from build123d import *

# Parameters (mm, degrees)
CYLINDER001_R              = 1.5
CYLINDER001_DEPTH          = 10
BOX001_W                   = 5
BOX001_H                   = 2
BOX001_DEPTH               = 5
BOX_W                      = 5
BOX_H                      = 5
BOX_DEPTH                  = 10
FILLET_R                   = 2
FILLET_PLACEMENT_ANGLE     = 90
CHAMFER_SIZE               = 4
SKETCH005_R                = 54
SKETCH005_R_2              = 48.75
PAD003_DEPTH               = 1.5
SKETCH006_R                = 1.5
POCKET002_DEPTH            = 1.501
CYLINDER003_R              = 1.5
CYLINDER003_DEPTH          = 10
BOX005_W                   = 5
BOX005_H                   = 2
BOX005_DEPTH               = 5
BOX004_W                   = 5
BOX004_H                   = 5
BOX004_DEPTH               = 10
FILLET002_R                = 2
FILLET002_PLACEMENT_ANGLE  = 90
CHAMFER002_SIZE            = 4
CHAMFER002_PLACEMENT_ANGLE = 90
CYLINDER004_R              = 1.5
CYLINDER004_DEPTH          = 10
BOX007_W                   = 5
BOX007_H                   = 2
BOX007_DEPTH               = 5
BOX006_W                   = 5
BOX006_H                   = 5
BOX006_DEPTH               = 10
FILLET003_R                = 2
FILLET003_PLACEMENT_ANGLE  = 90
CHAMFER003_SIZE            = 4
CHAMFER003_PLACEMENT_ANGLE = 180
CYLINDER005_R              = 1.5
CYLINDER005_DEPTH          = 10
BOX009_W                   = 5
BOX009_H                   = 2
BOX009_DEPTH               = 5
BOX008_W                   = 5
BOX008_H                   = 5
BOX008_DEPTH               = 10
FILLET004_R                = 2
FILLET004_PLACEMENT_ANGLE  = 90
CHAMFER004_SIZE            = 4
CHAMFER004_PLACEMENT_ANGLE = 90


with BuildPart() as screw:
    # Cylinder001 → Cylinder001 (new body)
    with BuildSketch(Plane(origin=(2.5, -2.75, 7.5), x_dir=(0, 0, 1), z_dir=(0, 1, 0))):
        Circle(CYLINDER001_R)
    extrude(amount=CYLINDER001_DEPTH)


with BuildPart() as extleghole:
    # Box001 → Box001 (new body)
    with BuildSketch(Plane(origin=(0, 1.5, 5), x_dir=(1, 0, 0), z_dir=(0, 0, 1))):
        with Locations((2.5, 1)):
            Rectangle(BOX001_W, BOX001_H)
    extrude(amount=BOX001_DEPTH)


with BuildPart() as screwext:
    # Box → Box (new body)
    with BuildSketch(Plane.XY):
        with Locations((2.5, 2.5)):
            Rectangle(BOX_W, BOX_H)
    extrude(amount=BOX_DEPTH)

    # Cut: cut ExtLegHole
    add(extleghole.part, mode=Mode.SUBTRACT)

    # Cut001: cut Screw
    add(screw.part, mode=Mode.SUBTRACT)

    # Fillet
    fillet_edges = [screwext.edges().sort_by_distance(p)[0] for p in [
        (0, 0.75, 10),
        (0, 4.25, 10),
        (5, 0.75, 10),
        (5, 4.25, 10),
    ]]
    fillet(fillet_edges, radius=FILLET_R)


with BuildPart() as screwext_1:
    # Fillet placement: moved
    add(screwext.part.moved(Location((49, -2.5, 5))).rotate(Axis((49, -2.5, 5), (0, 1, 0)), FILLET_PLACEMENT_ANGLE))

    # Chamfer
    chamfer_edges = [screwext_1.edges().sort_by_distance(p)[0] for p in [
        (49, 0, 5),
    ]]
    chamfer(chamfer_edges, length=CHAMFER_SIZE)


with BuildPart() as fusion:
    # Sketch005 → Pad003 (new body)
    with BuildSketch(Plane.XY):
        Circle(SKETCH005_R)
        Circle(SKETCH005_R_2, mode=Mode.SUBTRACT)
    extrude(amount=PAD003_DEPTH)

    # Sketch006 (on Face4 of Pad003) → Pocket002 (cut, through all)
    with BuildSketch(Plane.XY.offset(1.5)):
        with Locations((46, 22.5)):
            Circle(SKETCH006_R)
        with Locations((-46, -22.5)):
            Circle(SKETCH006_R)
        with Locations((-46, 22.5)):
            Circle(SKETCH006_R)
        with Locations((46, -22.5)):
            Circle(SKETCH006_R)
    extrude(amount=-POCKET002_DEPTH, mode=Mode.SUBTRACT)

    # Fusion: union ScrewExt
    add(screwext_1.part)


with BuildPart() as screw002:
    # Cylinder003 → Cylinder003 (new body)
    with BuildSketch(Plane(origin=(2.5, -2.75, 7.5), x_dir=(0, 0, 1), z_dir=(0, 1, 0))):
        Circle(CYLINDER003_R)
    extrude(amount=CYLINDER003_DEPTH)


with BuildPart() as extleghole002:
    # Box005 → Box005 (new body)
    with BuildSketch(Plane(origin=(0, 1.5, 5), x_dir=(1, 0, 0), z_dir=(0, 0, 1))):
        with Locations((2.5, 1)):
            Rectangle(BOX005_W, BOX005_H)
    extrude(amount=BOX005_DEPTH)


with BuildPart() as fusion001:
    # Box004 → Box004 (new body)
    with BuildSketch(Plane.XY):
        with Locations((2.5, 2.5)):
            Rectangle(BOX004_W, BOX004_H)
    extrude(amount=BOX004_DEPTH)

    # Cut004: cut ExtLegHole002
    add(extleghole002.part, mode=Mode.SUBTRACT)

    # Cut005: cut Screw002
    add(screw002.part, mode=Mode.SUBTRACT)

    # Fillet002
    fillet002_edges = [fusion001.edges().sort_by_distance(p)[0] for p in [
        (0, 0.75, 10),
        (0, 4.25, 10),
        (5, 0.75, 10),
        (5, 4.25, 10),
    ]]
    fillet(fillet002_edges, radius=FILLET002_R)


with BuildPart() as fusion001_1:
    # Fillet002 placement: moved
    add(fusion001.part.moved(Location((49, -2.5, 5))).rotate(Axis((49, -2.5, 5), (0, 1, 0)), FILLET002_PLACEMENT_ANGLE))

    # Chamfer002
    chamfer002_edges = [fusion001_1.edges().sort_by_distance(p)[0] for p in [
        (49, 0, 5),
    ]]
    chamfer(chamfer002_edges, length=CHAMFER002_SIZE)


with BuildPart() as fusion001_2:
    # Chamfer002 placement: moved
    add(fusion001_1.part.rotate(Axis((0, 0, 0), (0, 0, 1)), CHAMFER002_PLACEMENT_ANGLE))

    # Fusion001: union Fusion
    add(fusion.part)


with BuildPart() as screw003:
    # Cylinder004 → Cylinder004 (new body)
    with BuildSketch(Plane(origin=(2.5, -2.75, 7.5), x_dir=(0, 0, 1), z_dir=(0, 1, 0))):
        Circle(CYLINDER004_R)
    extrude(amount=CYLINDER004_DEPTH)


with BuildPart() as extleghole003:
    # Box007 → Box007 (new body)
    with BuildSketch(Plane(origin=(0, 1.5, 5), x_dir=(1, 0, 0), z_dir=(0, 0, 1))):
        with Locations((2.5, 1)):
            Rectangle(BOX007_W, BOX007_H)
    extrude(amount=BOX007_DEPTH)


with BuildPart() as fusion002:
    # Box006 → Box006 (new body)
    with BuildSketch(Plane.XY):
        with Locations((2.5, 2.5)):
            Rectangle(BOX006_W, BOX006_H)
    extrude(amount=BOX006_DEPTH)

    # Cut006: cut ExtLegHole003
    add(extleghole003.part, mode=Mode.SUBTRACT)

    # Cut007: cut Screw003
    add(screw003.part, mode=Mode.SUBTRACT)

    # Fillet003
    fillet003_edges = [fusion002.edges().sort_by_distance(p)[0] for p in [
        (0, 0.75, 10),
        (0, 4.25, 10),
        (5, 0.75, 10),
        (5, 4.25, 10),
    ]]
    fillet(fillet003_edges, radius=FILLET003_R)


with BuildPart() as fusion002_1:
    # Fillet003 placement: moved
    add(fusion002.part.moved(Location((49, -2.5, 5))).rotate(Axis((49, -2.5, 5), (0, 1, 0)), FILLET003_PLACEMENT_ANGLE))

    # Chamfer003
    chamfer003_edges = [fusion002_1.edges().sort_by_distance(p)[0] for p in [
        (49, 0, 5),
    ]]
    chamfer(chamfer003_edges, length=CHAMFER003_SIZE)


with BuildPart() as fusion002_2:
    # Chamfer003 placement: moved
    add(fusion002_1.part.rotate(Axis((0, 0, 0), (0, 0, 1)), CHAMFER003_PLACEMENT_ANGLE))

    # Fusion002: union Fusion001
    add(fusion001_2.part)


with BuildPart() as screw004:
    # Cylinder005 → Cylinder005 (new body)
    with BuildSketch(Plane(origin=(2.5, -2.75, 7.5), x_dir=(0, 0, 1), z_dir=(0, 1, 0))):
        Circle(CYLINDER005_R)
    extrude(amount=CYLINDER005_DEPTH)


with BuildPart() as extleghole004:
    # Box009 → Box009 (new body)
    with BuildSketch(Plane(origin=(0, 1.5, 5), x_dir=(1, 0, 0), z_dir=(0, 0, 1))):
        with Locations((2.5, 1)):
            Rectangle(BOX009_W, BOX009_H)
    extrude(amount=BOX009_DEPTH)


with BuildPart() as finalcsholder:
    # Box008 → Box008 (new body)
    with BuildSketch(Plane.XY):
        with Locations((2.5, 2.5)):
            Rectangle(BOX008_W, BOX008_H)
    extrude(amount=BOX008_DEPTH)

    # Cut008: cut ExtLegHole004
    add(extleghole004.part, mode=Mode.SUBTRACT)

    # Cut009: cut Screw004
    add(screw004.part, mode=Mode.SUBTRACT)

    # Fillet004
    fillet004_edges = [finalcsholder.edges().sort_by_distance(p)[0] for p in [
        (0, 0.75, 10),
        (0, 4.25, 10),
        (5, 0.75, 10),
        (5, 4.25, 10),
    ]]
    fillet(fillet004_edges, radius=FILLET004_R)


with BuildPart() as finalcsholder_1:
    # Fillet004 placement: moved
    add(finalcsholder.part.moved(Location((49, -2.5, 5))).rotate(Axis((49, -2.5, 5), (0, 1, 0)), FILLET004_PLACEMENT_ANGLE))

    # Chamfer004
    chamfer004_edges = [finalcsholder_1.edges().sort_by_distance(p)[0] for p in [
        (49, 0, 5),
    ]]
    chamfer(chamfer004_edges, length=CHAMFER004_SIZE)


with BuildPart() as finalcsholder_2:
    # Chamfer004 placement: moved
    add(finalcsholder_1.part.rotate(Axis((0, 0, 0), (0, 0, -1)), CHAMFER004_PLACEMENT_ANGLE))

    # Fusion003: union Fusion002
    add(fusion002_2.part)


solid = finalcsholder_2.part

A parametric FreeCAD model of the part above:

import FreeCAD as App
import Part
import Sketcher


def edges_at(feature, points):
    """Names of the edges that pass closest to the given points."""
    edges = feature.Shape.Edges
    near = lambda p: min(range(len(edges)), key=lambda i: edges[i].distToShape(Part.Vertex(*p))[0])
    return sorted({f"Edge{near(p) + 1}" for p in points})


def add_polygon(sketch, points):
    """Adds a closed chain of lines whose ends are joined by coincident constraints."""
    first, n = sketch.GeometryCount, len(points)
    for a, b in zip(points, points[1:] + points[:1]):
        sketch.addGeometry(Part.LineSegment(App.Vector(*a, 0), App.Vector(*b, 0)), False)
    for i in range(n):
        sketch.addConstraint(Sketcher.Constraint("Coincident", first + i, 2, first + (i + 1) % n, 1))

doc = App.newDocument("Part")
body = doc.addObject("PartDesign::Body", "Body")

sketch1 = body.newObject("Sketcher::SketchObject", "Sketch")
sketch1.AttachmentSupport = (doc.getObject("XZ_Plane"), [""])
sketch1.MapMode = "FlatFace"
sketch1.AttachmentOffset = App.Placement(App.Vector(0, 0, 2.75), App.Rotation())
sketch1.addGeometry(Part.Circle(App.Vector(2.5, 7.5, 0), App.Vector(0, 0, 1), 1.5), False)
sketch1.addConstraint(Sketcher.Constraint("Diameter", 0, 3.0))
sketch1.addConstraint(Sketcher.Constraint("DistanceX", -1, 1, 0, 3, 2.5))
sketch1.addConstraint(Sketcher.Constraint("DistanceY", -1, 1, 0, 3, 7.5))
pad1 = body.newObject("PartDesign::Pad", "Pad")
pad1.Profile = sketch1
pad1.Length = 10
pad1.Reversed = True
body2 = doc.addObject("PartDesign::Body", "Body001")

sketch2 = body2.newObject("Sketcher::SketchObject", "Sketch001")
sketch2.AttachmentSupport = (doc.getObject("XY_Plane001"), [""])
sketch2.MapMode = "FlatFace"
sketch2.AttachmentOffset = App.Placement(App.Vector(0, 0, 5), App.Rotation())
add_polygon(sketch2, [(0, 3.5), (0, 1.5), (5, 1.5), (5, 3.5)])
sketch2.addConstraint(Sketcher.Constraint("Vertical", 0))
sketch2.addConstraint(Sketcher.Constraint("Horizontal", 1))
sketch2.addConstraint(Sketcher.Constraint("Vertical", 2))
sketch2.addConstraint(Sketcher.Constraint("Horizontal", 3))
sketch2.addConstraint(Sketcher.Constraint("PointOnObject", 0, 2, -2))
sketch2.addConstraint(Sketcher.Constraint("DistanceX", 1, 1, 1, 2, 5.0))
sketch2.addConstraint(Sketcher.Constraint("DistanceY", 0, 2, 0, 1, 2.0))
sketch2.addConstraint(Sketcher.Constraint("DistanceY", -1, 1, 0, 2, 1.5))
pad2 = body2.newObject("PartDesign::Pad", "Pad001")
pad2.Profile = sketch2
pad2.Length = 5
body3 = doc.addObject("PartDesign::Body", "Body002")

sketch3 = body3.newObject("Sketcher::SketchObject", "Sketch002")
sketch3.AttachmentSupport = (doc.getObject("XY_Plane002"), [""])
sketch3.MapMode = "FlatFace"
add_polygon(sketch3, [(0, 5), (0, 0), (5, 0), (5, 5)])
sketch3.addConstraint(Sketcher.Constraint("Vertical", 0))
sketch3.addConstraint(Sketcher.Constraint("Horizontal", 1))
sketch3.addConstraint(Sketcher.Constraint("Vertical", 2))
sketch3.addConstraint(Sketcher.Constraint("Horizontal", 3))
sketch3.addConstraint(Sketcher.Constraint("Coincident", 0, 2, -1, 1))
sketch3.addConstraint(Sketcher.Constraint("Equal", 3, 0))
sketch3.addConstraint(Sketcher.Constraint("DistanceX", 1, 1, 1, 2, 5.0))
pad3 = body3.newObject("PartDesign::Pad", "Pad002")
pad3.Profile = sketch3
pad3.Length = 10
doc.recompute()

boolean = body3.newObject("PartDesign::Boolean", "Boolean")
boolean.Type = "Cut"
boolean.addObjects([body2])
doc.recompute()

boolean2 = body3.newObject("PartDesign::Boolean", "Boolean001")
boolean2.Type = "Cut"
boolean2.addObjects([body])
doc.recompute()

fillet = body3.newObject("PartDesign::Fillet", "Fillet")
fillet.Base = (boolean2, edges_at(boolean2, [
    (0, 0.75, 10),
    (0, 4.25, 10),
    (5, 0.75, 10),
    (5, 4.25, 10),
]))
fillet.Radius = 2
body4 = doc.addObject("PartDesign::Body", "Body003")
doc.recompute()

body3.Placement = App.Placement(App.Vector(49, -2.5, 5), App.Rotation(App.Vector(0, 1, 0), 90))
boolean3 = body4.newObject("PartDesign::Boolean", "Boolean002")
boolean3.Type = "Fuse"
boolean3.addObjects([body3])
doc.recompute()

chamfer = body4.newObject("PartDesign::Chamfer", "Chamfer")
chamfer.Base = (boolean3, edges_at(boolean3, [(49, 0, 5)]))
chamfer.Size = 4
body5 = doc.addObject("PartDesign::Body", "Body004")

sketch4 = body5.newObject("Sketcher::SketchObject", "Sketch003")
sketch4.AttachmentSupport = (doc.getObject("XY_Plane004"), [""])
sketch4.MapMode = "FlatFace"
sketch4.addGeometry(Part.Circle(App.Vector(0, 0, 0), App.Vector(0, 0, 1), 54), False)
sketch4.addGeometry(Part.Circle(App.Vector(0, 0, 0), App.Vector(0, 0, 1), 49), False)
sketch4.addConstraint(Sketcher.Constraint("Coincident", 0, 3, -1, 1))
sketch4.addConstraint(Sketcher.Constraint("Coincident", 1, 3, -1, 1))
sketch4.addConstraint(Sketcher.Constraint("Diameter", 0, 108.0))
sketch4.addConstraint(Sketcher.Constraint("Diameter", 1, 97.5))
pad4 = body5.newObject("PartDesign::Pad", "Pad003")
pad4.Profile = sketch4
pad4.Length = 1.5

sketch5 = body5.newObject("Sketcher::SketchObject", "Sketch004")
sketch5.AttachmentSupport = (doc.getObject("XY_Plane004"), [""])
sketch5.MapMode = "FlatFace"
sketch5.AttachmentOffset = App.Placement(App.Vector(0, 0, 1.5), App.Rotation())
sketch5.addGeometry(Part.Circle(App.Vector(46, 22.5, 0), App.Vector(0, 0, 1), 1.5), False)
sketch5.addGeometry(Part.Circle(App.Vector(-46, -22.5, 0), App.Vector(0, 0, 1), 1.5), False)
sketch5.addGeometry(Part.Circle(App.Vector(-46, 22.5, 0), App.Vector(0, 0, 1), 1.5), False)
sketch5.addGeometry(Part.Circle(App.Vector(46, -22.5, 0), App.Vector(0, 0, 1), 1.5), False)
sketch5.addConstraint(Sketcher.Constraint("Equal", 0, 1))
sketch5.addConstraint(Sketcher.Constraint("Equal", 1, 2))
sketch5.addConstraint(Sketcher.Constraint("Equal", 2, 3))
sketch5.addConstraint(Sketcher.Constraint("Symmetric", 0, 3, 1, 3, -1, 1))
sketch5.addConstraint(Sketcher.Constraint("Symmetric", 2, 3, 3, 3, -1, 1))
sketch5.addConstraint(Sketcher.Constraint("Symmetric", 0, 3, 2, 3, -2))
sketch5.addConstraint(Sketcher.Constraint("Diameter", 0, 3.0))
sketch5.addConstraint(Sketcher.Constraint("DistanceX", -1, 1, 0, 3, 46.0))
sketch5.addConstraint(Sketcher.Constraint("DistanceY", 1, 3, 0, 3, 45.0))
pocket1 = body5.newObject("PartDesign::Pocket", "Pocket")
pocket1.Profile = sketch5
pocket1.Type = "ThroughAll"
doc.recompute()

boolean4 = body5.newObject("PartDesign::Boolean", "Boolean003")
boolean4.Type = "Fuse"
boolean4.addObjects([body4])
body6 = doc.addObject("PartDesign::Body", "Body005")

sketch6 = body6.newObject("Sketcher::SketchObject", "Sketch005")
sketch6.AttachmentSupport = (doc.getObject("XZ_Plane005"), [""])
sketch6.MapMode = "FlatFace"
sketch6.AttachmentOffset = App.Placement(App.Vector(0, 0, 2.75), App.Rotation())
sketch6.addGeometry(Part.Circle(App.Vector(2.5, 7.5, 0), App.Vector(0, 0, 1), 1.5), False)
sketch6.addConstraint(Sketcher.Constraint("Diameter", 0, 3.0))
sketch6.addConstraint(Sketcher.Constraint("DistanceX", -1, 1, 0, 3, 2.5))
sketch6.addConstraint(Sketcher.Constraint("DistanceY", -1, 1, 0, 3, 7.5))
pad5 = body6.newObject("PartDesign::Pad", "Pad004")
pad5.Profile = sketch6
pad5.Length = 10
pad5.Reversed = True
body7 = doc.addObject("PartDesign::Body", "Body006")

sketch7 = body7.newObject("Sketcher::SketchObject", "Sketch006")
sketch7.AttachmentSupport = (doc.getObject("XY_Plane006"), [""])
sketch7.MapMode = "FlatFace"
sketch7.AttachmentOffset = App.Placement(App.Vector(0, 0, 5), App.Rotation())
add_polygon(sketch7, [(0, 3.5), (0, 1.5), (5, 1.5), (5, 3.5)])
sketch7.addConstraint(Sketcher.Constraint("Vertical", 0))
sketch7.addConstraint(Sketcher.Constraint("Horizontal", 1))
sketch7.addConstraint(Sketcher.Constraint("Vertical", 2))
sketch7.addConstraint(Sketcher.Constraint("Horizontal", 3))
sketch7.addConstraint(Sketcher.Constraint("PointOnObject", 0, 2, -2))
sketch7.addConstraint(Sketcher.Constraint("DistanceX", 1, 1, 1, 2, 5.0))
sketch7.addConstraint(Sketcher.Constraint("DistanceY", 0, 2, 0, 1, 2.0))
sketch7.addConstraint(Sketcher.Constraint("DistanceY", -1, 1, 0, 2, 1.5))
pad6 = body7.newObject("PartDesign::Pad", "Pad005")
pad6.Profile = sketch7
pad6.Length = 5
body8 = doc.addObject("PartDesign::Body", "Body007")

sketch8 = body8.newObject("Sketcher::SketchObject", "Sketch007")
sketch8.AttachmentSupport = (doc.getObject("XY_Plane007"), [""])
sketch8.MapMode = "FlatFace"
add_polygon(sketch8, [(0, 5), (0, 0), (5, 0), (5, 5)])
sketch8.addConstraint(Sketcher.Constraint("Vertical", 0))
sketch8.addConstraint(Sketcher.Constraint("Horizontal", 1))
sketch8.addConstraint(Sketcher.Constraint("Vertical", 2))
sketch8.addConstraint(Sketcher.Constraint("Horizontal", 3))
sketch8.addConstraint(Sketcher.Constraint("Coincident", 0, 2, -1, 1))
sketch8.addConstraint(Sketcher.Constraint("Equal", 3, 0))
sketch8.addConstraint(Sketcher.Constraint("DistanceX", 1, 1, 1, 2, 5.0))
pad7 = body8.newObject("PartDesign::Pad", "Pad006")
pad7.Profile = sketch8
pad7.Length = 10
doc.recompute()

boolean5 = body8.newObject("PartDesign::Boolean", "Boolean004")
boolean5.Type = "Cut"
boolean5.addObjects([body7])
doc.recompute()

boolean6 = body8.newObject("PartDesign::Boolean", "Boolean005")
boolean6.Type = "Cut"
boolean6.addObjects([body6])
doc.recompute()

fillet2 = body8.newObject("PartDesign::Fillet", "Fillet001")
fillet2.Base = (boolean6, edges_at(boolean6, [
    (0, 0.75, 10),
    (0, 4.25, 10),
    (5, 0.75, 10),
    (5, 4.25, 10),
]))
fillet2.Radius = 2
body9 = doc.addObject("PartDesign::Body", "Body008")
doc.recompute()

body8.Placement = App.Placement(App.Vector(49, -2.5, 5), App.Rotation(App.Vector(0, 1, 0), 90))
boolean7 = body9.newObject("PartDesign::Boolean", "Boolean006")
boolean7.Type = "Fuse"
boolean7.addObjects([body8])
doc.recompute()

chamfer2 = body9.newObject("PartDesign::Chamfer", "Chamfer001")
chamfer2.Base = (boolean7, edges_at(boolean7, [(49, 0, 5)]))
chamfer2.Size = 4
body10 = doc.addObject("PartDesign::Body", "Body009")
doc.recompute()

body9.Placement = App.Placement(App.Vector(0, 0, 0), App.Rotation(App.Vector(0, 0, 1), 90))
boolean8 = body10.newObject("PartDesign::Boolean", "Boolean007")
boolean8.Type = "Fuse"
boolean8.addObjects([body9])
doc.recompute()

boolean9 = body10.newObject("PartDesign::Boolean", "Boolean008")
boolean9.Type = "Fuse"
boolean9.addObjects([body5])
body11 = doc.addObject("PartDesign::Body", "Body010")

sketch9 = body11.newObject("Sketcher::SketchObject", "Sketch008")
sketch9.AttachmentSupport = (doc.getObject("XZ_Plane010"), [""])
sketch9.MapMode = "FlatFace"
sketch9.AttachmentOffset = App.Placement(App.Vector(0, 0, 2.75), App.Rotation())
sketch9.addGeometry(Part.Circle(App.Vector(2.5, 7.5, 0), App.Vector(0, 0, 1), 1.5), False)
sketch9.addConstraint(Sketcher.Constraint("Diameter", 0, 3.0))
sketch9.addConstraint(Sketcher.Constraint("DistanceX", -1, 1, 0, 3, 2.5))
sketch9.addConstraint(Sketcher.Constraint("DistanceY", -1, 1, 0, 3, 7.5))
pad8 = body11.newObject("PartDesign::Pad", "Pad007")
pad8.Profile = sketch9
pad8.Length = 10
pad8.Reversed = True
body12 = doc.addObject("PartDesign::Body", "Body011")

sketch10 = body12.newObject("Sketcher::SketchObject", "Sketch009")
sketch10.AttachmentSupport = (doc.getObject("XY_Plane011"), [""])
sketch10.MapMode = "FlatFace"
sketch10.AttachmentOffset = App.Placement(App.Vector(0, 0, 5), App.Rotation())
add_polygon(sketch10, [(0, 3.5), (0, 1.5), (5, 1.5), (5, 3.5)])
sketch10.addConstraint(Sketcher.Constraint("Vertical", 0))
sketch10.addConstraint(Sketcher.Constraint("Horizontal", 1))
sketch10.addConstraint(Sketcher.Constraint("Vertical", 2))
sketch10.addConstraint(Sketcher.Constraint("Horizontal", 3))
sketch10.addConstraint(Sketcher.Constraint("PointOnObject", 0, 2, -2))
sketch10.addConstraint(Sketcher.Constraint("DistanceX", 1, 1, 1, 2, 5.0))
sketch10.addConstraint(Sketcher.Constraint("DistanceY", 0, 2, 0, 1, 2.0))
sketch10.addConstraint(Sketcher.Constraint("DistanceY", -1, 1, 0, 2, 1.5))
pad9 = body12.newObject("PartDesign::Pad", "Pad008")
pad9.Profile = sketch10
pad9.Length = 5
body13 = doc.addObject("PartDesign::Body", "Body012")

sketch11 = body13.newObject("Sketcher::SketchObject", "Sketch010")
sketch11.AttachmentSupport = (doc.getObject("XY_Plane012"), [""])
sketch11.MapMode = "FlatFace"
add_polygon(sketch11, [(0, 5), (0, 0), (5, 0), (5, 5)])
sketch11.addConstraint(Sketcher.Constraint("Vertical", 0))
sketch11.addConstraint(Sketcher.Constraint("Horizontal", 1))
sketch11.addConstraint(Sketcher.Constraint("Vertical", 2))
sketch11.addConstraint(Sketcher.Constraint("Horizontal", 3))
sketch11.addConstraint(Sketcher.Constraint("Coincident", 0, 2, -1, 1))
sketch11.addConstraint(Sketcher.Constraint("Equal", 3, 0))
sketch11.addConstraint(Sketcher.Constraint("DistanceX", 1, 1, 1, 2, 5.0))
pad10 = body13.newObject("PartDesign::Pad", "Pad009")
pad10.Profile = sketch11
pad10.Length = 10
doc.recompute()

boolean10 = body13.newObject("PartDesign::Boolean", "Boolean009")
boolean10.Type = "Cut"
boolean10.addObjects([body12])
doc.recompute()

boolean11 = body13.newObject("PartDesign::Boolean", "Boolean010")
boolean11.Type = "Cut"
boolean11.addObjects([body11])
doc.recompute()

fillet3 = body13.newObject("PartDesign::Fillet", "Fillet002")
fillet3.Base = (boolean11, edges_at(boolean11, [
    (0, 0.75, 10),
    (0, 4.25, 10),
    (5, 0.75, 10),
    (5, 4.25, 10),
]))
fillet3.Radius = 2
body14 = doc.addObject("PartDesign::Body", "Body013")
doc.recompute()

body13.Placement = App.Placement(App.Vector(49, -2.5, 5), App.Rotation(App.Vector(0, 1, 0), 90))
boolean12 = body14.newObject("PartDesign::Boolean", "Boolean011")
boolean12.Type = "Fuse"
boolean12.addObjects([body13])
doc.recompute()

chamfer3 = body14.newObject("PartDesign::Chamfer", "Chamfer002")
chamfer3.Base = (boolean12, edges_at(boolean12, [(49, 0, 5)]))
chamfer3.Size = 4
body15 = doc.addObject("PartDesign::Body", "Body014")
doc.recompute()

body14.Placement = App.Placement(App.Vector(0, 0, 0), App.Rotation(App.Vector(0, 0, 1), 180))
boolean13 = body15.newObject("PartDesign::Boolean", "Boolean012")
boolean13.Type = "Fuse"
boolean13.addObjects([body14])
doc.recompute()

boolean14 = body15.newObject("PartDesign::Boolean", "Boolean013")
boolean14.Type = "Fuse"
boolean14.addObjects([body10])
body16 = doc.addObject("PartDesign::Body", "Body015")

sketch12 = body16.newObject("Sketcher::SketchObject", "Sketch011")
sketch12.AttachmentSupport = (doc.getObject("XZ_Plane015"), [""])
sketch12.MapMode = "FlatFace"
sketch12.AttachmentOffset = App.Placement(App.Vector(0, 0, 2.75), App.Rotation())
sketch12.addGeometry(Part.Circle(App.Vector(2.5, 7.5, 0), App.Vector(0, 0, 1), 1.5), False)
sketch12.addConstraint(Sketcher.Constraint("Diameter", 0, 3.0))
sketch12.addConstraint(Sketcher.Constraint("DistanceX", -1, 1, 0, 3, 2.5))
sketch12.addConstraint(Sketcher.Constraint("DistanceY", -1, 1, 0, 3, 7.5))
pad11 = body16.newObject("PartDesign::Pad", "Pad010")
pad11.Profile = sketch12
pad11.Length = 10
pad11.Reversed = True
body17 = doc.addObject("PartDesign::Body", "Body016")

sketch13 = body17.newObject("Sketcher::SketchObject", "Sketch012")
sketch13.AttachmentSupport = (doc.getObject("XY_Plane016"), [""])
sketch13.MapMode = "FlatFace"
sketch13.AttachmentOffset = App.Placement(App.Vector(0, 0, 5), App.Rotation())
add_polygon(sketch13, [(0, 3.5), (0, 1.5), (5, 1.5), (5, 3.5)])
sketch13.addConstraint(Sketcher.Constraint("Vertical", 0))
sketch13.addConstraint(Sketcher.Constraint("Horizontal", 1))
sketch13.addConstraint(Sketcher.Constraint("Vertical", 2))
sketch13.addConstraint(Sketcher.Constraint("Horizontal", 3))
sketch13.addConstraint(Sketcher.Constraint("PointOnObject", 0, 2, -2))
sketch13.addConstraint(Sketcher.Constraint("DistanceX", 1, 1, 1, 2, 5.0))
sketch13.addConstraint(Sketcher.Constraint("DistanceY", 0, 2, 0, 1, 2.0))
sketch13.addConstraint(Sketcher.Constraint("DistanceY", -1, 1, 0, 2, 1.5))
pad12 = body17.newObject("PartDesign::Pad", "Pad011")
pad12.Profile = sketch13
pad12.Length = 5
body18 = doc.addObject("PartDesign::Body", "Body017")

sketch14 = body18.newObject("Sketcher::SketchObject", "Sketch013")
sketch14.AttachmentSupport = (doc.getObject("XY_Plane017"), [""])
sketch14.MapMode = "FlatFace"
add_polygon(sketch14, [(0, 5), (0, 0), (5, 0), (5, 5)])
sketch14.addConstraint(Sketcher.Constraint("Vertical", 0))
sketch14.addConstraint(Sketcher.Constraint("Horizontal", 1))
sketch14.addConstraint(Sketcher.Constraint("Vertical", 2))
sketch14.addConstraint(Sketcher.Constraint("Horizontal", 3))
sketch14.addConstraint(Sketcher.Constraint("Coincident", 0, 2, -1, 1))
sketch14.addConstraint(Sketcher.Constraint("Equal", 3, 0))
sketch14.addConstraint(Sketcher.Constraint("DistanceX", 1, 1, 1, 2, 5.0))
pad13 = body18.newObject("PartDesign::Pad", "Pad012")
pad13.Profile = sketch14
pad13.Length = 10
doc.recompute()

boolean15 = body18.newObject("PartDesign::Boolean", "Boolean014")
boolean15.Type = "Cut"
boolean15.addObjects([body17])
doc.recompute()

boolean16 = body18.newObject("PartDesign::Boolean", "Boolean015")
boolean16.Type = "Cut"
boolean16.addObjects([body16])
doc.recompute()

fillet4 = body18.newObject("PartDesign::Fillet", "Fillet003")
fillet4.Base = (boolean16, edges_at(boolean16, [
    (0, 0.75, 10),
    (0, 4.25, 10),
    (5, 0.75, 10),
    (5, 4.25, 10),
]))
fillet4.Radius = 2
body19 = doc.addObject("PartDesign::Body", "Body018")
doc.recompute()

body18.Placement = App.Placement(App.Vector(49, -2.5, 5), App.Rotation(App.Vector(0, 1, 0), 90))
boolean17 = body19.newObject("PartDesign::Boolean", "Boolean016")
boolean17.Type = "Fuse"
boolean17.addObjects([body18])
doc.recompute()

chamfer4 = body19.newObject("PartDesign::Chamfer", "Chamfer003")
chamfer4.Base = (boolean17, edges_at(boolean17, [(49, 0, 5)]))
chamfer4.Size = 4
body20 = doc.addObject("PartDesign::Body", "Body019")
doc.recompute()

body19.Placement = App.Placement(App.Vector(0, 0, 0), App.Rotation(App.Vector(0, 0, -1), 90))
boolean18 = body20.newObject("PartDesign::Boolean", "Boolean017")
boolean18.Type = "Fuse"
boolean18.addObjects([body19])
doc.recompute()

boolean19 = body20.newObject("PartDesign::Boolean", "Boolean018")
boolean19.Type = "Fuse"
boolean19.addObjects([body15])

doc.recompute()
